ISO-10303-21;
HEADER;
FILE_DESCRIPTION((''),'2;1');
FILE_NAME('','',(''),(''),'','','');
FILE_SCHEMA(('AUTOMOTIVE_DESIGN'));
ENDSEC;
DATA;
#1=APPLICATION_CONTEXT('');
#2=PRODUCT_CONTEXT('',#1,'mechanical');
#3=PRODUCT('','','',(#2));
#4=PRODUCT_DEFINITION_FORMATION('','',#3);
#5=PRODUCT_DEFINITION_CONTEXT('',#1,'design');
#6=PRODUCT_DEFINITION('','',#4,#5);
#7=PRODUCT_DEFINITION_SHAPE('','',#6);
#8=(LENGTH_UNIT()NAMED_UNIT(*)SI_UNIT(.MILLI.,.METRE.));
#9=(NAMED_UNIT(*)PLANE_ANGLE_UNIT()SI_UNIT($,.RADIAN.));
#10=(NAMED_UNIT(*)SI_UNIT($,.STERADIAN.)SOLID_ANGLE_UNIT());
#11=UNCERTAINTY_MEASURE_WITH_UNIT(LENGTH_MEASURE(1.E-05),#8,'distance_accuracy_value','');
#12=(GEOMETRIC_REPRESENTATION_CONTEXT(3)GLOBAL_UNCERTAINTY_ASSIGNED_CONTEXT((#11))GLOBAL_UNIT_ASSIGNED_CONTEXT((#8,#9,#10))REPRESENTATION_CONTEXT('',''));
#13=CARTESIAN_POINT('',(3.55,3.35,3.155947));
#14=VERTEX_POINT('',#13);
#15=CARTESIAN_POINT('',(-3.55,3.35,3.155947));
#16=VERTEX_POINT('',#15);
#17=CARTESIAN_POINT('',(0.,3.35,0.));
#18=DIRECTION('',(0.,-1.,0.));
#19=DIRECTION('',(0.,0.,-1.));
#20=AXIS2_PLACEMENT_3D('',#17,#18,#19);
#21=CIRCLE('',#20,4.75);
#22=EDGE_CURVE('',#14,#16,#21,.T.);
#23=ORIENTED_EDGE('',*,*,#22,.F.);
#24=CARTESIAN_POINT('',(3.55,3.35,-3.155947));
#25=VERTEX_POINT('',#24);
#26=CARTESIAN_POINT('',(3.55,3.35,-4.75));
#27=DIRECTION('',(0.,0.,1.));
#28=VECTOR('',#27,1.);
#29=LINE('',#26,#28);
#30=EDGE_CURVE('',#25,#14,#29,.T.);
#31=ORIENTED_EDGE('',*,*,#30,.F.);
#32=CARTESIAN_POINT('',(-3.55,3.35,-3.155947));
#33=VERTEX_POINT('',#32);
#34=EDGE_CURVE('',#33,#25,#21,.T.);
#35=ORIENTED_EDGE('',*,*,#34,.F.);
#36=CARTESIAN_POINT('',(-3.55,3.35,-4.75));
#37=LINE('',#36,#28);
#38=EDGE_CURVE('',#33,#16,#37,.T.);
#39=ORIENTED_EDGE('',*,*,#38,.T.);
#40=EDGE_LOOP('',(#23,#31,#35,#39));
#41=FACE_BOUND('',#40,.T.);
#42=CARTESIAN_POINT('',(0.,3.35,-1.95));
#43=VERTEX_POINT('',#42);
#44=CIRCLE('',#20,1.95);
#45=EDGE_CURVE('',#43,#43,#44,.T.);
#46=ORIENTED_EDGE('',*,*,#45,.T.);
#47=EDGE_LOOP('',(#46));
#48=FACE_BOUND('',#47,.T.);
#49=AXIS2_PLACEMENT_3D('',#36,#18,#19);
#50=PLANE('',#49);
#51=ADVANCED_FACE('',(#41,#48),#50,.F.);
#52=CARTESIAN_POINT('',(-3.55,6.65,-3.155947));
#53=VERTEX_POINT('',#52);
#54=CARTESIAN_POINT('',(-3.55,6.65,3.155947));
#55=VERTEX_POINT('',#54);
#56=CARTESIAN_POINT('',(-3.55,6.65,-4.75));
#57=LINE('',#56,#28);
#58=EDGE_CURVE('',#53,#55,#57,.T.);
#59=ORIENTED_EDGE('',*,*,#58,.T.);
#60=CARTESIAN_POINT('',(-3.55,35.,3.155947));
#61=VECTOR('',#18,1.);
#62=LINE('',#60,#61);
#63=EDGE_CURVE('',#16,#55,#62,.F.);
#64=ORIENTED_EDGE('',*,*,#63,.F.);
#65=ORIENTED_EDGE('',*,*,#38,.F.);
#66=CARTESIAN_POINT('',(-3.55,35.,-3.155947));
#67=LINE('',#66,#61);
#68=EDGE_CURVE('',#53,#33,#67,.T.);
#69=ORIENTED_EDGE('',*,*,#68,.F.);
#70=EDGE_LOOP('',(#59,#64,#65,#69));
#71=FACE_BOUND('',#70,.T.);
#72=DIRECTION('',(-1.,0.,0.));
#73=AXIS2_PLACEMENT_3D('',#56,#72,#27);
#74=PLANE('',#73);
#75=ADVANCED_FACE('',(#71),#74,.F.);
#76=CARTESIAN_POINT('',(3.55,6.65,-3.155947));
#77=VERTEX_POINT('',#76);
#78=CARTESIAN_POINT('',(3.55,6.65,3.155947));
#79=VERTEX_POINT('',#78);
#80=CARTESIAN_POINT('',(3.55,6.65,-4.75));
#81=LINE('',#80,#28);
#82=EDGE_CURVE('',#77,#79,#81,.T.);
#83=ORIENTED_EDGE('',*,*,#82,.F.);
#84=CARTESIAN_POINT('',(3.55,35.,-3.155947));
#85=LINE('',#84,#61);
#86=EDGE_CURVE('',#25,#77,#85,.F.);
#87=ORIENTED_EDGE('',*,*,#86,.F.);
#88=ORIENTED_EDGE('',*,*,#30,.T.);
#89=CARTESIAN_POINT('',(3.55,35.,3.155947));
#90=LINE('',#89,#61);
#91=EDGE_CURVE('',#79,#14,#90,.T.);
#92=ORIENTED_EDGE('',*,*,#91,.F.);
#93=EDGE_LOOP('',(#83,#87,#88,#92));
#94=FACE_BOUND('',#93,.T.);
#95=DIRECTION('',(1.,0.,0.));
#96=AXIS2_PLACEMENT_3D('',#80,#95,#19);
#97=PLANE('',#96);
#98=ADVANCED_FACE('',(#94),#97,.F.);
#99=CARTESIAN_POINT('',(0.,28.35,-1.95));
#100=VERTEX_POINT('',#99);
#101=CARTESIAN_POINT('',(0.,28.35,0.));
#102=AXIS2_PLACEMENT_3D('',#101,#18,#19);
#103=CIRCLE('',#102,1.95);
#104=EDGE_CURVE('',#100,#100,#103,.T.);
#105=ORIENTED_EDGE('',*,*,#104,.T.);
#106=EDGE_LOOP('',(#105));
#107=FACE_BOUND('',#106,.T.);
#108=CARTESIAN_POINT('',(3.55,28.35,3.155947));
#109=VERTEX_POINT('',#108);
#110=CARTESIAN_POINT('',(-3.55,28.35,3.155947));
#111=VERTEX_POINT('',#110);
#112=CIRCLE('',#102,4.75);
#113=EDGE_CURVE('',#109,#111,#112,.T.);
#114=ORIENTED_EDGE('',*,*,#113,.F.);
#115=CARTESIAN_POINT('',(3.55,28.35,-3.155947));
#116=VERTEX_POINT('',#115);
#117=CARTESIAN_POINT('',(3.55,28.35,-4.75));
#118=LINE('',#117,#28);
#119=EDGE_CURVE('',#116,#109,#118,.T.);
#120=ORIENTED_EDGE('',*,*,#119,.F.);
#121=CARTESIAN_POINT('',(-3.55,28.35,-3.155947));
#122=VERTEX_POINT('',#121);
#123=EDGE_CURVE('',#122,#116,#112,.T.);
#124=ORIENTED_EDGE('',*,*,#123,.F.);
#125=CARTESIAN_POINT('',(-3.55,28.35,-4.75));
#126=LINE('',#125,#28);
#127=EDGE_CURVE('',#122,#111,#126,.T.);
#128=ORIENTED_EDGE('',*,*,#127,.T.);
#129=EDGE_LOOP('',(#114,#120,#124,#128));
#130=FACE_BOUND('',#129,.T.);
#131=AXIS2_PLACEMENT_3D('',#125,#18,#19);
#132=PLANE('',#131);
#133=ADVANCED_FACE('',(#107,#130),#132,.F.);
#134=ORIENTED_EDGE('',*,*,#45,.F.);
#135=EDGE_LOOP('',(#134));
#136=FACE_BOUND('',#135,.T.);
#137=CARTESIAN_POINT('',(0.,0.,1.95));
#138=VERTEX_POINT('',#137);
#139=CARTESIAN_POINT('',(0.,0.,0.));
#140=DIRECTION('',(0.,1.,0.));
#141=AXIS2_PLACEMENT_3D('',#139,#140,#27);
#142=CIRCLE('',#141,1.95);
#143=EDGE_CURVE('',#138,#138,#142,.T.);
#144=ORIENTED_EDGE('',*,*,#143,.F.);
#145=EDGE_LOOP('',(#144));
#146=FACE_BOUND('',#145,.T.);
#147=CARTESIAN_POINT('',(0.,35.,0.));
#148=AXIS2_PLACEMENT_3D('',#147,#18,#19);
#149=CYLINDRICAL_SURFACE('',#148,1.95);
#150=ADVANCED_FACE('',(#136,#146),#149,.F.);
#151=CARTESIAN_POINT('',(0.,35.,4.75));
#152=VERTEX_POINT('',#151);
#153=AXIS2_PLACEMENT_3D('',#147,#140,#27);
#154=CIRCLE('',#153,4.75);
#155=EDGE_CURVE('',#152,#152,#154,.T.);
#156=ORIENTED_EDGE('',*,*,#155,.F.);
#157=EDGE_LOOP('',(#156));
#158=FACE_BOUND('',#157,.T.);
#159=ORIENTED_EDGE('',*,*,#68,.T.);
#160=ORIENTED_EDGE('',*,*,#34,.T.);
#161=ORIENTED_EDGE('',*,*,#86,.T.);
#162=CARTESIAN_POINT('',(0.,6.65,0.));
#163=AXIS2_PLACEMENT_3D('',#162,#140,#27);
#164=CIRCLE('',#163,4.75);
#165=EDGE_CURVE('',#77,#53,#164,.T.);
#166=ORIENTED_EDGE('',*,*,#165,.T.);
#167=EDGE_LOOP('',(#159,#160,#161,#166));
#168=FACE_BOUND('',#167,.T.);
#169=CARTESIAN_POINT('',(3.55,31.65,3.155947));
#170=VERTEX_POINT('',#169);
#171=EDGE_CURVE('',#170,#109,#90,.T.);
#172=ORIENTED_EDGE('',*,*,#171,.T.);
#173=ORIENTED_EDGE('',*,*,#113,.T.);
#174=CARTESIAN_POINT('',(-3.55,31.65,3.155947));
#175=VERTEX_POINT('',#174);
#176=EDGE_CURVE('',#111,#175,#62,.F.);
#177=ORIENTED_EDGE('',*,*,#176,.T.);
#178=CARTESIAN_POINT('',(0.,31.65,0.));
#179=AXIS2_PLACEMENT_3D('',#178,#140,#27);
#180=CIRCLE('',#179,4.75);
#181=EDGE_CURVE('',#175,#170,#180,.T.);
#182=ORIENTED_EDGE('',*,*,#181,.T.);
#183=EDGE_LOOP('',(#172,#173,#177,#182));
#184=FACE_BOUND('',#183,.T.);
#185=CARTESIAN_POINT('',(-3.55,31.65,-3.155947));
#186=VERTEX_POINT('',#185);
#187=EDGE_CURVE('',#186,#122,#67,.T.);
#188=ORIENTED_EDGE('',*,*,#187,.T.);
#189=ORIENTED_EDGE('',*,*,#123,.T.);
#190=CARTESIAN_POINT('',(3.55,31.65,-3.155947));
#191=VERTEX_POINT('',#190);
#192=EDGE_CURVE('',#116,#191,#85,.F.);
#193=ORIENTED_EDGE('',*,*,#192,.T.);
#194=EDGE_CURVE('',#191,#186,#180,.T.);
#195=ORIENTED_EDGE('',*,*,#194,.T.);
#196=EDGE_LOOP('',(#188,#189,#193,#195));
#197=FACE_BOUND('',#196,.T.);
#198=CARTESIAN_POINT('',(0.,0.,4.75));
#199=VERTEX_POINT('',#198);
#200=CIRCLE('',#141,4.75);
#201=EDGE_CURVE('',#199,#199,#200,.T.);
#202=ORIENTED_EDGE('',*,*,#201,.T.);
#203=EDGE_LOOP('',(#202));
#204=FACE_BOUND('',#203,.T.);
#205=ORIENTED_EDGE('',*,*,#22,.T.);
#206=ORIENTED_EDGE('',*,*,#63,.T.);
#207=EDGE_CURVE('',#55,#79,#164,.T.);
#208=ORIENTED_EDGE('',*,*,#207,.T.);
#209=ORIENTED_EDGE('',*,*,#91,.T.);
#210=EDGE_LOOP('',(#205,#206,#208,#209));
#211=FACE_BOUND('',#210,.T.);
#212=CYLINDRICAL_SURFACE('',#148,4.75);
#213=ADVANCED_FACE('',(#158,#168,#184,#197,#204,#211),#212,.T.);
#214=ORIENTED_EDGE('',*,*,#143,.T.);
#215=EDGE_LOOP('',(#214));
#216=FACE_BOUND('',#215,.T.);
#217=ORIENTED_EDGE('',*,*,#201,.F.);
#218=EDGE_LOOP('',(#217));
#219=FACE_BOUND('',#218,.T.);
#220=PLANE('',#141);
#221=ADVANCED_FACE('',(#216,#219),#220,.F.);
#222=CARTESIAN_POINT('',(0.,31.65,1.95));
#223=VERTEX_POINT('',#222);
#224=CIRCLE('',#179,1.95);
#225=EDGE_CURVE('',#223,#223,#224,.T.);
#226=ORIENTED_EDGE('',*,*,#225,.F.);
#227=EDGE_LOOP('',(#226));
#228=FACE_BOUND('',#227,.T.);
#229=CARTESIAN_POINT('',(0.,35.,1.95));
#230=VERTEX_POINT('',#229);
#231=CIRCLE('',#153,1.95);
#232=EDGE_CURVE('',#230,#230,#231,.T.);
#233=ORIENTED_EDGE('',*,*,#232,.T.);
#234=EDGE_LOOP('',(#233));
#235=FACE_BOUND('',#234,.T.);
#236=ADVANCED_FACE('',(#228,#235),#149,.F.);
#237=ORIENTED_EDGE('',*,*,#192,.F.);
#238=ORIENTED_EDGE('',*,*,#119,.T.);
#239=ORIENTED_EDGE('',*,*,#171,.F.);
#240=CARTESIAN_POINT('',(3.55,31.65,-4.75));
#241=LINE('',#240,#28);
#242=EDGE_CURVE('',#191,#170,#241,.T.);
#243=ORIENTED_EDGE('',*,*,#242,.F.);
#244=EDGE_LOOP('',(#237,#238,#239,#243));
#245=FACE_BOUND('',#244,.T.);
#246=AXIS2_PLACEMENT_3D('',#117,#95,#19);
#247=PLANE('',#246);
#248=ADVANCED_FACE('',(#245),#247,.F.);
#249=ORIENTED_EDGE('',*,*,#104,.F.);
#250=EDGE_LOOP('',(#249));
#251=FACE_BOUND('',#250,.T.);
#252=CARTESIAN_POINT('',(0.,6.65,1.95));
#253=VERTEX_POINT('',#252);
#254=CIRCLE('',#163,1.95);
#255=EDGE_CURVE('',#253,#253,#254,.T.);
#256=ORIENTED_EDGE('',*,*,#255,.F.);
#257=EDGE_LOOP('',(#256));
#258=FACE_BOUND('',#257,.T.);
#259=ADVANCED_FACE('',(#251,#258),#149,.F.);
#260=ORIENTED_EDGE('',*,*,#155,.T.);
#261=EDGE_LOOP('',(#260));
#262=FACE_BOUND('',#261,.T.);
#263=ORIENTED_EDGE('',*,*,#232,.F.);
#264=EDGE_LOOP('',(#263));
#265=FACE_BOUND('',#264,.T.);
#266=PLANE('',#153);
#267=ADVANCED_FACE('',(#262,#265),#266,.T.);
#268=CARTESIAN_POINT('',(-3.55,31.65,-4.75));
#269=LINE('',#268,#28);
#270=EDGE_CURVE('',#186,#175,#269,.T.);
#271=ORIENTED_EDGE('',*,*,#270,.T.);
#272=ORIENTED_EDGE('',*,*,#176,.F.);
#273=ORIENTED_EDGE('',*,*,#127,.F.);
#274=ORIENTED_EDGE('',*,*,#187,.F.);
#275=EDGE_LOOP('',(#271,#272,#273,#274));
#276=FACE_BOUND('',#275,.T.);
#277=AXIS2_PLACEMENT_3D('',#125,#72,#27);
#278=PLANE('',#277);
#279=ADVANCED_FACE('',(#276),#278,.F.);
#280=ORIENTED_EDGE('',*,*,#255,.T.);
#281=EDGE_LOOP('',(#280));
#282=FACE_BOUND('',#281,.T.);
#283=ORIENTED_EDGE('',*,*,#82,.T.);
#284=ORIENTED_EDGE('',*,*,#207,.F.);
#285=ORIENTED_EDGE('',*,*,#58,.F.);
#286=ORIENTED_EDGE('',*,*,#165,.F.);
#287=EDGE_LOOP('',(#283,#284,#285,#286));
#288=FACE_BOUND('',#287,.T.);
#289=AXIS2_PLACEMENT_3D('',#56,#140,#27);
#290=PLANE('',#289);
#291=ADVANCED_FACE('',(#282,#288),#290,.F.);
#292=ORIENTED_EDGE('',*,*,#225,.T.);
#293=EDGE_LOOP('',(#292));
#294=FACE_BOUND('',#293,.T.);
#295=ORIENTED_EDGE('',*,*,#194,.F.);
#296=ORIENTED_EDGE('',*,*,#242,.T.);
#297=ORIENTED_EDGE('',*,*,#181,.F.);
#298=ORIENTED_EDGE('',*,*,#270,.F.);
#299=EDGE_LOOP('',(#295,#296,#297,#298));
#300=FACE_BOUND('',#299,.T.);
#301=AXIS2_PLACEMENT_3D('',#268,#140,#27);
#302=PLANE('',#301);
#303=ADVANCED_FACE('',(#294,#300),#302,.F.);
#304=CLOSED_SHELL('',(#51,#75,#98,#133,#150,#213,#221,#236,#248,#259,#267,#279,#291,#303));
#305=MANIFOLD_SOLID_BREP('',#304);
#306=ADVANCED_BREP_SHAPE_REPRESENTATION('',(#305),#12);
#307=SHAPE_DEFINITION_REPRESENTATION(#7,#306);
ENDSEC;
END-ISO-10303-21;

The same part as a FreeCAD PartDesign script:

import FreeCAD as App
import Part
import Sketcher
from FreeCAD import Vector
Q = App.Units.Quantity

doc = App.newDocument("Part")
body = doc.addObject("PartDesign::Body", "Body")

# Sketch on XZ plane
sketch1 = doc.addObject("Sketcher::SketchObject", "Sketch")
body.addObject(sketch1)
sketch1.AttachmentSupport = (doc.XZ_Plane, [""])
sketch1.MapMode = "FlatFace"
sketch1.addGeometry([
    Part.Circle(Vector(0, 0, 0), Vector(0, 0, 1), 4.75),
    Part.Circle(Vector(0, 0, 0), Vector(0, 0, 1), 1.95),
], False)
sketch1.addConstraint([
    Sketcher.Constraint("Coincident", 0, 3, -1, 1),
    Sketcher.Constraint("Coincident", 1, 3, -1, 1),
    Sketcher.Constraint("Diameter", 0, Q("9.5 mm")),
    Sketcher.Constraint("Diameter", 1, Q("3.9 mm")),
])
pad1 = doc.addObject("PartDesign::Pad", "Pad")
body.addObject(pad1)
pad1.Profile = sketch1
pad1.Length = 35
pad1.Reversed = True

# Sketch on XY plane
sketch2 = doc.addObject("Sketcher::SketchObject", "Sketch001")
body.addObject(sketch2)
sketch2.AttachmentSupport = (doc.XY_Plane, [""])
sketch2.MapMode = "FlatFace"
sketch2.addGeometry([
    Part.LineSegment(Vector(-3.55, 31.65, 0), Vector(-3.55, 28.35, 0)),  # 0
    Part.LineSegment(Vector(-3.55, 28.35, 0), Vector(3.55, 28.35, 0)),  # 1
    Part.LineSegment(Vector(3.55, 28.35, 0), Vector(3.55, 31.65, 0)),  # 2
    Part.LineSegment(Vector(3.55, 31.65, 0), Vector(-3.55, 31.65, 0)),  # 3
    Part.LineSegment(Vector(-3.55, 6.65, 0), Vector(-3.55, 3.35, 0)),  # 4
    Part.LineSegment(Vector(-3.55, 3.35, 0), Vector(3.55, 3.35, 0)),  # 5
    Part.LineSegment(Vector(3.55, 3.35, 0), Vector(3.55, 6.65, 0)),  # 6
    Part.LineSegment(Vector(3.55, 6.65, 0), Vector(-3.55, 6.65, 0)),  # 7
], False)
sketch2.addConstraint([
    Sketcher.Constraint("Coincident", 0, 2, 1, 1),
    Sketcher.Constraint("Coincident", 1, 2, 2, 1),
    Sketcher.Constraint("Coincident", 2, 2, 3, 1),
    Sketcher.Constraint("Coincident", 3, 2, 0, 1),
    Sketcher.Constraint("Coincident", 4, 2, 5, 1),
    Sketcher.Constraint("Coincident", 5, 2, 6, 1),
    Sketcher.Constraint("Coincident", 6, 2, 7, 1),
    Sketcher.Constraint("Coincident", 7, 2, 4, 1),
    Sketcher.Constraint("Vertical", 0),
    Sketcher.Constraint("Horizontal", 1),
    Sketcher.Constraint("Vertical", 2),
    Sketcher.Constraint("Horizontal", 3),
    Sketcher.Constraint("Vertical", 4),
    Sketcher.Constraint("Horizontal", 5),
    Sketcher.Constraint("Vertical", 6),
    Sketcher.Constraint("Horizontal", 7),
    Sketcher.Constraint("Vertical", 3, 2, 4, 2),
    Sketcher.Constraint("Vertical", 2, 2, 5, 2),
    Sketcher.Constraint("Equal", 2, 4),
    Sketcher.Constraint("DistanceX", 1, 1, 1, 2, Q("7.1 mm")),
    Sketcher.Constraint("DistanceY", 0, 2, 0, 1, Q("3.3 mm")),
    Sketcher.Constraint("DistanceY", 4, 2, 0, 2, Q("25 mm")),
    Sketcher.Constraint("DistanceX", 0, 2, -1, 1, Q("3.55 mm")),
    Sketcher.Constraint("DistanceY", -1, 1, 0, 2, Q("28.35 mm")),
])
pocket1 = doc.addObject("PartDesign::Pocket", "Pocket")
body.addObject(pocket1)
pocket1.Profile = sketch2
pocket1.Type = "ThroughAll"
pocket1.Midplane = True

doc.recompute()
